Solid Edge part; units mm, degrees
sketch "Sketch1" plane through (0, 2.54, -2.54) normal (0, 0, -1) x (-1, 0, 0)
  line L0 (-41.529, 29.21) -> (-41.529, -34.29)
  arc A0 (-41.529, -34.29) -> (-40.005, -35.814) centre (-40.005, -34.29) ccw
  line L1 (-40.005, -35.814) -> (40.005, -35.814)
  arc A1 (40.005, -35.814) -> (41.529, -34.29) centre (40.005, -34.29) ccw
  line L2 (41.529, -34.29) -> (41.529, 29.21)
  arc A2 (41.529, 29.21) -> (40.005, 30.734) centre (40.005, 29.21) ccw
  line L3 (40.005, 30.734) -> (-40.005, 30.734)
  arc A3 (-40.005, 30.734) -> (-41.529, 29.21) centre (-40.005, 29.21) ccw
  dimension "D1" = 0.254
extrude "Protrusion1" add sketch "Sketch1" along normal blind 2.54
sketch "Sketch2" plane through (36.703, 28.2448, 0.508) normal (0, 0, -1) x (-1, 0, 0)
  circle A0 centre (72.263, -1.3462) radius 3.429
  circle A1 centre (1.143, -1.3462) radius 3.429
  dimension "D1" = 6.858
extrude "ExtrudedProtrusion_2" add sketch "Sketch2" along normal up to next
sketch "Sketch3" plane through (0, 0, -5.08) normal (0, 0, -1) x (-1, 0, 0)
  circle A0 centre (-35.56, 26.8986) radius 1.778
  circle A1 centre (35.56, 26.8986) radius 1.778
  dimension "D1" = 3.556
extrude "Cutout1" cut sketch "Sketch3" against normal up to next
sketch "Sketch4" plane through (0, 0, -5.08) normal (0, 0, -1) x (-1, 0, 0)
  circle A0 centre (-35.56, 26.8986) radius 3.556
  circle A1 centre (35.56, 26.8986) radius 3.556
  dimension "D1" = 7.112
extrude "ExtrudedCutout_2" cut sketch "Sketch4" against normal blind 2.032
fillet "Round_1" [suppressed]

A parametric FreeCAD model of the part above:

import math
import FreeCAD as App
import Part
import Sketcher
Q = App.Units.Quantity

doc = App.newDocument("Part")
params = doc.addObject("Spreadsheet::Sheet", "Params")
for row, (alias, value) in enumerate([
    ("sketch1_radius", "0.06 in"),
    ("sketch1_height", "2.5 in"),
    ("sketch1_width", "3.15 in"),
    ("pad1_length", "0.1 in"),
    ("sketch2_diameter", "0.27 in"),
    ("sketch3_diameter", "0.14 in"),
    ("pocket1_length", "0.22 in"),
    ("sketch4_diameter", "0.28 in"),
    ("pocket2_length", "0.08 in"),
], start=1):
    params.set(f"A{row}", alias)
    params.set(f"B{row}", "=" + value)
    params.setAlias(f"B{row}", alias)

body = doc.addObject("PartDesign::Body", "Body")

# Sketch on XY plane
sketch1 = body.newObject("Sketcher::SketchObject", "Sketch")
sketch1.AttachmentSupport = (doc.getObject("XY_Plane"), [""])
sketch1.MapMode = "FlatFace"
sketch1.AttachmentOffset = App.Placement(App.Vector(0, 0, -0.1 * 25.4), App.Rotation())
sketch1.addGeometry([
    Part.ArcOfCircle(Part.Circle(App.Vector(40, 31.8, 0), App.Vector(0, 0, 1), 1.5), math.radians(0), math.radians(90)),  # 0
    Part.LineSegment(App.Vector(41.5, 31.8, 0), App.Vector(41.5, -31.8, 0)),  # 1
    Part.ArcOfCircle(Part.Circle(App.Vector(40, -31.8, 0), App.Vector(0, 0, 1), 1.5), math.radians(-90), math.radians(0)),  # 2
    Part.LineSegment(App.Vector(40, -33.3, 0), App.Vector(-40, -33.3, 0)),  # 3
    Part.ArcOfCircle(Part.Circle(App.Vector(-40, -31.8, 0), App.Vector(0, 0, 1), 1.5), math.radians(180), math.radians(270)),  # 4
    Part.LineSegment(App.Vector(-41.5, -31.8, 0), App.Vector(-41.5, 31.8, 0)),  # 5
    Part.ArcOfCircle(Part.Circle(App.Vector(-40, 31.8, 0), App.Vector(0, 0, 1), 1.5), math.radians(90), math.radians(180)),  # 6
    Part.LineSegment(App.Vector(-40, 33.3, 0), App.Vector(40, 33.3, 0)),  # 7
], False)
sketch1.addConstraint([
    Sketcher.Constraint("Tangent", 0, 1, 1, 1),
    Sketcher.Constraint("Tangent", 1, 2, 2, 2),
    Sketcher.Constraint("Tangent", 2, 1, 3, 1),
    Sketcher.Constraint("Tangent", 3, 2, 4, 2),
    Sketcher.Constraint("Tangent", 4, 1, 5, 1),
    Sketcher.Constraint("Tangent", 5, 2, 6, 2),
    Sketcher.Constraint("Tangent", 6, 1, 7, 1),
    Sketcher.Constraint("Tangent", 7, 2, 0, 2),
    Sketcher.Constraint("Vertical", 1),
    Sketcher.Constraint("Horizontal", 3),
    Sketcher.Constraint("Vertical", 5),
    Sketcher.Constraint("Horizontal", 7),
    Sketcher.Constraint("Equal", 0, 2),
    Sketcher.Constraint("Equal", 2, 4),
    Sketcher.Constraint("Equal", 4, 6),
    Sketcher.Constraint("Symmetric", 0, 3, 4, 3, -1, 1),
    Sketcher.Constraint("Radius", 0, Q("0.06 in")),
    Sketcher.Constraint("DistanceY", 1, 2, 1, 1, Q("2.5 in")),
    Sketcher.Constraint("DistanceX", 3, 2, 3, 1, Q("3.15 in")),
])
sketch1.setExpression("Constraints[16]", "Params.sketch1_radius")
sketch1.setExpression("Constraints[17]", "Params.sketch1_height")
sketch1.setExpression("Constraints[18]", "Params.sketch1_width")
pad1 = body.newObject("PartDesign::Pad", "Pad")
pad1.Profile = sketch1
pad1.setExpression("Length", "Params.pad1_length")
pad1.Reversed = True

# Sketch on XY plane
sketch2 = body.newObject("Sketcher::SketchObject", "Sketch001")
sketch2.AttachmentSupport = (doc.getObject("XY_Plane"), [""])
sketch2.MapMode = "FlatFace"
sketch2.AttachmentOffset = App.Placement(App.Vector(0, 0, 0.02 * 25.4), App.Rotation())
sketch2.addGeometry([
    Part.Circle(App.Vector(-35.6, 26.9, 0), App.Vector(0, 0, 1), 3.4),
    Part.Circle(App.Vector(35.6, 26.9, 0), App.Vector(0, 0, 1), 3.4),
], False)
sketch2.addConstraint([
    Sketcher.Constraint("Equal", 0, 1),
    Sketcher.Constraint("Symmetric", 0, 3, 1, 3, -2),
    Sketcher.Constraint("Diameter", 0, Q("0.27 in")),
    Sketcher.Constraint("DistanceX", 0, 3, -1, 1, Q("1.4 in")),
    Sketcher.Constraint("DistanceY", -1, 1, 0, 3, Q("1.059 in")),
])
sketch2.setExpression("Constraints[2]", "Params.sketch2_diameter")
pad2 = body.newObject("PartDesign::Pad", "Pad001")
pad2.Profile = sketch2
pad2.Type = "UpToFirst"
pad2.Reversed = True

# Sketch on XY plane
sketch3 = body.newObject("Sketcher::SketchObject", "Sketch002")
sketch3.AttachmentSupport = (doc.getObject("XY_Plane"), [""])
sketch3.MapMode = "FlatFace"
sketch3.AttachmentOffset = App.Placement(App.Vector(0, 0, -0.2 * 25.4), App.Rotation())
sketch3.addGeometry([
    Part.Circle(App.Vector(35.6, 26.9, 0), App.Vector(0, 0, 1), 1.8),
    Part.Circle(App.Vector(-35.6, 26.9, 0), App.Vector(0, 0, 1), 1.8),
], False)
sketch3.addConstraint([
    Sketcher.Constraint("Equal", 0, 1),
    Sketcher.Constraint("Symmetric", 0, 3, 1, 3, -2),
    Sketcher.Constraint("Diameter", 0, Q("0.14 in")),
    Sketcher.Constraint("DistanceX", -1, 1, 0, 3, Q("1.4 in")),
    Sketcher.Constraint("DistanceY", -1, 1, 0, 3, Q("1.059 in")),
])
sketch3.setExpression("Constraints[2]", "Params.sketch3_diameter")
pocket1 = body.newObject("PartDesign::Pocket", "Pocket")
pocket1.Profile = sketch3
pocket1.setExpression("Length", "Params.pocket1_length")
pocket1.Reversed = True

# Sketch on XY plane
sketch4 = body.newObject("Sketcher::SketchObject", "Sketch003")
sketch4.AttachmentSupport = (doc.getObject("XY_Plane"), [""])
sketch4.MapMode = "FlatFace"
sketch4.AttachmentOffset = App.Placement(App.Vector(0, 0, -0.2 * 25.4), App.Rotation())
sketch4.addGeometry([
    Part.Circle(App.Vector(35.6, 26.9, 0), App.Vector(0, 0, 1), 3.6),
    Part.Circle(App.Vector(-35.6, 26.9, 0), App.Vector(0, 0, 1), 3.6),
], False)
sketch4.addConstraint([
    Sketcher.Constraint("Equal", 0, 1),
    Sketcher.Constraint("Symmetric", 0, 3, 1, 3, -2),
    Sketcher.Constraint("Diameter", 0, Q("0.28 in")),
    Sketcher.Constraint("DistanceX", -1, 1, 0, 3, Q("1.4 in")),
    Sketcher.Constraint("DistanceY", -1, 1, 0, 3, Q("1.059 in")),
])
sketch4.setExpression("Constraints[2]", "Params.sketch4_diameter")
pocket2 = body.newObject("PartDesign::Pocket", "Pocket001")
pocket2.Profile = sketch4
pocket2.setExpression("Length", "Params.pocket2_length")
pocket2.Reversed = True

doc.recompute()
